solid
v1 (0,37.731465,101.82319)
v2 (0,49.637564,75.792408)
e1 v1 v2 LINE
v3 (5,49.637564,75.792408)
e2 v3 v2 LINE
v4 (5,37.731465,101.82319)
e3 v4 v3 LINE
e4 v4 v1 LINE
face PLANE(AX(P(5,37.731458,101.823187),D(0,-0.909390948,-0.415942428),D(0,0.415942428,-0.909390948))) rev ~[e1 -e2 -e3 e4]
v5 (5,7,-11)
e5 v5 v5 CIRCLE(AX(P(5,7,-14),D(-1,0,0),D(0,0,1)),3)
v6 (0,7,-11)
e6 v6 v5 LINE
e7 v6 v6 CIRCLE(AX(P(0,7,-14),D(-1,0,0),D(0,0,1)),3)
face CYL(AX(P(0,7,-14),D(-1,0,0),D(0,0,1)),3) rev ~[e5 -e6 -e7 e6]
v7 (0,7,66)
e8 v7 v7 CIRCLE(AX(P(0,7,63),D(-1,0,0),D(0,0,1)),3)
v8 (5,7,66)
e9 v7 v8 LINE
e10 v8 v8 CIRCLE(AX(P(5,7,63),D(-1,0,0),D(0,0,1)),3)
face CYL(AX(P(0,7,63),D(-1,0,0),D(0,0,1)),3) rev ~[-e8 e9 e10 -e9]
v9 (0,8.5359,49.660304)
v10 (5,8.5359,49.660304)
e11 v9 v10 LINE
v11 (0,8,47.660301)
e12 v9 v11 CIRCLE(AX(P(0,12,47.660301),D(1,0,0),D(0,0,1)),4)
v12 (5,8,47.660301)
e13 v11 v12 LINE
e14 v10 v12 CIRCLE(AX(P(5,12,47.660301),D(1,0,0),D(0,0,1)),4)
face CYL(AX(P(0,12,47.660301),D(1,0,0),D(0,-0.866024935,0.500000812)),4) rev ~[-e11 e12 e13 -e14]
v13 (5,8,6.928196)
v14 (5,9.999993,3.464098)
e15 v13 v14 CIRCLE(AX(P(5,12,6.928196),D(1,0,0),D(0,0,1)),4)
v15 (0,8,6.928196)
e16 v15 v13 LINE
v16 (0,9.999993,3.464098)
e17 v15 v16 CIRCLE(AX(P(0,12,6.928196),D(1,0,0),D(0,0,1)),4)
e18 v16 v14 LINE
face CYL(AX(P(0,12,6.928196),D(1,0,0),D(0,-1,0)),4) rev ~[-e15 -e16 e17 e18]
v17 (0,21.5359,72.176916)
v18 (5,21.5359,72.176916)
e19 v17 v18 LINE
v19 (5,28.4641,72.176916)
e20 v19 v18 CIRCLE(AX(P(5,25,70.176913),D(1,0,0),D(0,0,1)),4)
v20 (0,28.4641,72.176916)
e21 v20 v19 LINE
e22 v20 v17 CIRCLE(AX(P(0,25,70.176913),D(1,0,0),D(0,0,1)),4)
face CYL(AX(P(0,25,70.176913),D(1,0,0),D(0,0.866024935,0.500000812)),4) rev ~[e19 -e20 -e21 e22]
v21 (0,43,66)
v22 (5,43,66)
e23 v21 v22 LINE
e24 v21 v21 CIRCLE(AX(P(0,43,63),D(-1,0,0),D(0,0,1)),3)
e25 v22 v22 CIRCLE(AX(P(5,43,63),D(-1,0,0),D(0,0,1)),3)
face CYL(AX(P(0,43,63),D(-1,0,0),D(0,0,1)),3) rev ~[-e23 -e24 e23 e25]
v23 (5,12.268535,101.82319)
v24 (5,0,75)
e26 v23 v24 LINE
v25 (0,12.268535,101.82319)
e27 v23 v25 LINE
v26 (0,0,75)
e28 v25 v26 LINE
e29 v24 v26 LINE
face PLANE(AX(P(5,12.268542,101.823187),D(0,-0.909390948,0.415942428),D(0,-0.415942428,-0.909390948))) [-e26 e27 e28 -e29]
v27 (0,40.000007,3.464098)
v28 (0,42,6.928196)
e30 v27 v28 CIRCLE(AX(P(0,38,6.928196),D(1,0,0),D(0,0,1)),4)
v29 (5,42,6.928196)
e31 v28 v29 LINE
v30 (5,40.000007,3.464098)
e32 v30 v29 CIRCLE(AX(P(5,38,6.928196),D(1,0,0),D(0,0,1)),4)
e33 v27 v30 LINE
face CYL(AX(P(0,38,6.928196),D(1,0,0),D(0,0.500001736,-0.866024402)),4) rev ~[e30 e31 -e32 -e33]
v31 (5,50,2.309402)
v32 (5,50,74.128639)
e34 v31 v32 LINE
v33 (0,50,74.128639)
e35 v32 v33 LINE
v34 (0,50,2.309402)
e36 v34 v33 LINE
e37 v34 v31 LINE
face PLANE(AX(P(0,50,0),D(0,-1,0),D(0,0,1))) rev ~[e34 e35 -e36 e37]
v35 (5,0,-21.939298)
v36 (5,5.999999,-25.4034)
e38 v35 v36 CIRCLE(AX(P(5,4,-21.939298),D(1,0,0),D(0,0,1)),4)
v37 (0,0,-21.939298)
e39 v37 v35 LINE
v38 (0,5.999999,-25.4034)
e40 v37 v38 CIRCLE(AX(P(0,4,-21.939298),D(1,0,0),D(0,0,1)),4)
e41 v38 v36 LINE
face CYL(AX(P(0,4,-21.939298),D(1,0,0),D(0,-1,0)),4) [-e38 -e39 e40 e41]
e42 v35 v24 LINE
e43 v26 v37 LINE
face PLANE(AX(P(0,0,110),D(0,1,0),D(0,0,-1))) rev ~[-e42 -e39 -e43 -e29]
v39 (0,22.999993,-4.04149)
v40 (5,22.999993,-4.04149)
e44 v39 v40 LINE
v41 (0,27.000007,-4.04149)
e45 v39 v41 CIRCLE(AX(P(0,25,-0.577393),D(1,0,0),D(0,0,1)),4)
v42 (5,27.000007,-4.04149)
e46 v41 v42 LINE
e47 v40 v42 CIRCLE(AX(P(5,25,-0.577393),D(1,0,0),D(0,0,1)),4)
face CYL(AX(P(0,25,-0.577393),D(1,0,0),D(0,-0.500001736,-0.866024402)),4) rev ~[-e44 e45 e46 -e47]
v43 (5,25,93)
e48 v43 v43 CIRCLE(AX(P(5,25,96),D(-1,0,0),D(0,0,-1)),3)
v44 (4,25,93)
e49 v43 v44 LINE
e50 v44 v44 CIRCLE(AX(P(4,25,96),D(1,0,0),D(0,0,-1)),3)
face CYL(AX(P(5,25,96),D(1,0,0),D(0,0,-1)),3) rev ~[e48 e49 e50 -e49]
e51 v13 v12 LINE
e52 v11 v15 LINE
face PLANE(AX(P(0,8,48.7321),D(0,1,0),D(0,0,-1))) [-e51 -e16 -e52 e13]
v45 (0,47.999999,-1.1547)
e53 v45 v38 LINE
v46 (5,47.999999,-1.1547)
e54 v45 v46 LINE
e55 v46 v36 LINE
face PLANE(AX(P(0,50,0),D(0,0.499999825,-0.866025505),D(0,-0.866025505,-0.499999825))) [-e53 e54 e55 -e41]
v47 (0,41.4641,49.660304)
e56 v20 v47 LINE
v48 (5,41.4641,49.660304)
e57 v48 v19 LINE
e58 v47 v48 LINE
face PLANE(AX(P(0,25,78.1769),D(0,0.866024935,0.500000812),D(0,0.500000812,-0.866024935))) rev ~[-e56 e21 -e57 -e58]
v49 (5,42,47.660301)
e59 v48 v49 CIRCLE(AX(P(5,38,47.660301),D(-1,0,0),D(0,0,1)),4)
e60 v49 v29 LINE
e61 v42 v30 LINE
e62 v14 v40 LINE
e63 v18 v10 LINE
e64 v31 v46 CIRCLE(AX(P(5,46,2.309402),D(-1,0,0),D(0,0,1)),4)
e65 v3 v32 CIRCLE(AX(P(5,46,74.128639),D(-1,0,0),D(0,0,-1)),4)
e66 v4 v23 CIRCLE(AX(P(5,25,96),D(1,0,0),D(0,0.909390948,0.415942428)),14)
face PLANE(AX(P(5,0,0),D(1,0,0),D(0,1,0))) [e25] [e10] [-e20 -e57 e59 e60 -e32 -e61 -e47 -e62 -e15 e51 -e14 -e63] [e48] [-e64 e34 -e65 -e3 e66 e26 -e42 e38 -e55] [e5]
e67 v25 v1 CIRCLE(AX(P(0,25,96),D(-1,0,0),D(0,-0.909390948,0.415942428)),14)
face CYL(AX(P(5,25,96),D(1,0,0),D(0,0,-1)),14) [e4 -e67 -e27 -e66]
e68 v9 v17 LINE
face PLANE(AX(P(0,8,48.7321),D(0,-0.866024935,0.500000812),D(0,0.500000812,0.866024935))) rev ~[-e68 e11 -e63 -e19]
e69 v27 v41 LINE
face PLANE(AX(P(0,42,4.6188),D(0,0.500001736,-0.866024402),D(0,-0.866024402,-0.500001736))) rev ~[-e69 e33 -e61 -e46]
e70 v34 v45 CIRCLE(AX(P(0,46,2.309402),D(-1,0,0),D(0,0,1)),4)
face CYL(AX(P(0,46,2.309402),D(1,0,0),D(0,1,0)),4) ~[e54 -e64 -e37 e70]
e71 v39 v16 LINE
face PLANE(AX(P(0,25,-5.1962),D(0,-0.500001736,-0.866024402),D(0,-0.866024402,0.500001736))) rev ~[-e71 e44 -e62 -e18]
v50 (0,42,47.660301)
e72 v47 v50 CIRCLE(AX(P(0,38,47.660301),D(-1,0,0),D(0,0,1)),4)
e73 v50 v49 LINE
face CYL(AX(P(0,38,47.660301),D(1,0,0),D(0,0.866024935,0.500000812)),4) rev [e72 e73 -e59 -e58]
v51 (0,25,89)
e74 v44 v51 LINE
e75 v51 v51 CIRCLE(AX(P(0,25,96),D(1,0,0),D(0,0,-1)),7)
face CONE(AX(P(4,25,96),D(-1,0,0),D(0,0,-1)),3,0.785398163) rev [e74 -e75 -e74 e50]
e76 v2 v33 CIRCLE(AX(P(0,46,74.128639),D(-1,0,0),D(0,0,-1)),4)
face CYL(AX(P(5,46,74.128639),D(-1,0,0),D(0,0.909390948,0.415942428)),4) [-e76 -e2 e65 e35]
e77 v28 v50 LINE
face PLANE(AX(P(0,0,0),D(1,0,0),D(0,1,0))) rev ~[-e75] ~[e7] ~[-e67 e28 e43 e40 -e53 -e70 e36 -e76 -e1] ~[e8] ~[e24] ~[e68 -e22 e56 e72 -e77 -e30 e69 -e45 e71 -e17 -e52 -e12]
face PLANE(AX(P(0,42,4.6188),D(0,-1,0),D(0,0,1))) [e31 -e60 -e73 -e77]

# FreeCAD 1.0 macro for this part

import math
import FreeCAD as App
import Part
import Sketcher
from FreeCAD import Vector
Q = App.Units.Quantity


def edges_at(feature, points):
    """Names of the edges that pass closest to the given points."""
    edges = feature.Shape.Edges
    near = lambda p: min(range(len(edges)), key=lambda i: edges[i].distToShape(Part.Vertex(*p))[0])
    return sorted({f"Edge{near(p) + 1}" for p in points})

doc = App.newDocument("Part")
body = doc.addObject("PartDesign::Body", "Body")

sketch1 = body.newObject("Sketcher::SketchObject", "Sketch")
sketch1.AttachmentSupport = (doc.getObject("YZ_Plane"), [""])
sketch1.MapMode = "FlatFace"
sketch1.addGeometry(Part.LineSegment(Vector(0, 110, 0), Vector(0, -29, 0)), False)
sketch1.addGeometry(Part.LineSegment(Vector(0, -29, 0), Vector(50, 0, 0)), False)
sketch1.addGeometry(Part.LineSegment(Vector(50, 0, 0), Vector(50, 110, 0)), False)
sketch1.addGeometry(Part.LineSegment(Vector(50, 110, 0), Vector(0, 110, 0)), False)
sketch1.addConstraint(Sketcher.Constraint("Coincident", 0, 2, 1, 1))
sketch1.addConstraint(Sketcher.Constraint("Coincident", 1, 2, 2, 1))
sketch1.addConstraint(Sketcher.Constraint("Coincident", 2, 2, 3, 1))
sketch1.addConstraint(Sketcher.Constraint("Coincident", 3, 2, 0, 1))
sketch1.addConstraint(Sketcher.Constraint("Vertical", 0))
sketch1.addConstraint(Sketcher.Constraint("Vertical", 2))
sketch1.addConstraint(Sketcher.Constraint("Horizontal", 3))
sketch1.addConstraint(Sketcher.Constraint("PointOnObject", 0, 2, -2))
sketch1.addConstraint(Sketcher.Constraint("PointOnObject", 1, 2, -1))
sketch1.addConstraint(Sketcher.Constraint("DistanceX", 3, 2, 3, 1, 50.0))
sketch1.addConstraint(Sketcher.Constraint("DistanceY", 2, 1, 2, 2, 110.0))
sketch1.addConstraint(Sketcher.Constraint("Angle", 1, Q("30 deg")))
pad1 = body.newObject("PartDesign::Pad", "Pad")
pad1.Profile = sketch1
pad1.Length = 5
doc.recompute()

fillet = body.newObject("PartDesign::Fillet", "Fillet")
fillet.Base = (pad1, edges_at(pad1, [(2.5, 50, 0), (2.5, 0, -28.867)]))
fillet.Radius = 4

sketch2 = body.newObject("Sketcher::SketchObject", "Sketch001")
sketch2.AttachmentSupport = (doc.getObject("YZ_Plane"), [""])
sketch2.MapMode = "FlatFace"
sketch2.AttachmentOffset = App.Placement(Vector(0, 0, 5), App.Rotation())
sketch2.addGeometry(Part.LineSegment(Vector(37.7, 101.8, 0), Vector(50, 75, 0)), False)
sketch2.addGeometry(Part.LineSegment(Vector(50, 75, 0), Vector(50, 110, 0)), False)
sketch2.addGeometry(Part.LineSegment(Vector(50, 110, 0), Vector(25, 110, 0)), False)
sketch2.addGeometry(Part.ArcOfCircle(Part.Circle(Vector(25, 96, 0), Vector(0, 0, 1), 14), math.radians(25), math.radians(90)), False)
sketch2.addGeometry(Part.LineSegment(Vector(0, 110, 0), Vector(0, 75, 0)), False)
sketch2.addGeometry(Part.LineSegment(Vector(0, 75, 0), Vector(12.3, 101.8, 0)), False)
sketch2.addGeometry(Part.ArcOfCircle(Part.Circle(Vector(25, 96, 0), Vector(0, 0, 1), 14), math.radians(90), math.radians(155)), False)
sketch2.addGeometry(Part.LineSegment(Vector(25, 110, 0), Vector(0, 110, 0)), False)
sketch2.addGeometry(Part.Circle(Vector(25, 96, 0), Vector(0, 0, 1), 3), False)
sketch2.addConstraint(Sketcher.Constraint("Coincident", 0, 2, 1, 1))
sketch2.addConstraint(Sketcher.Constraint("Coincident", 1, 2, 2, 1))
sketch2.addConstraint(Sketcher.Constraint("Tangent", 2, 2, 3, 2))
sketch2.addConstraint(Sketcher.Constraint("Tangent", 3, 1, 0, 1))
sketch2.addConstraint(Sketcher.Constraint("Coincident", 4, 2, 5, 1))
sketch2.addConstraint(Sketcher.Constraint("Tangent", 5, 2, 6, 2))
sketch2.addConstraint(Sketcher.Constraint("Tangent", 6, 1, 7, 1))
sketch2.addConstraint(Sketcher.Constraint("Coincident", 7, 2, 4, 1))
sketch2.addConstraint(Sketcher.Constraint("Vertical", 1))
sketch2.addConstraint(Sketcher.Constraint("Horizontal", 2))
sketch2.addConstraint(Sketcher.Constraint("Vertical", 4))
sketch2.addConstraint(Sketcher.Constraint("Horizontal", 7))
sketch2.addConstraint(Sketcher.Constraint("Coincident", 6, 3, 3, 3))
sketch2.addConstraint(Sketcher.Constraint("Coincident", 8, 3, 3, 3))
sketch2.addConstraint(Sketcher.Constraint("Equal", 3, 6))
sketch2.addConstraint(Sketcher.Constraint("PointOnObject", 4, 2, -2))
sketch2.addConstraint(Sketcher.Constraint("Horizontal", 0, 2, 4, 2))
sketch2.addConstraint(Sketcher.Constraint("Horizontal", 3, 1, 5, 2))
sketch2.addConstraint(Sketcher.Constraint("Diameter", 8, 6.0))
sketch2.addConstraint(Sketcher.Constraint("Radius", 3, 14.0))
sketch2.addConstraint(Sketcher.Constraint("DistanceX", 2, 2, 2, 1, 25.0))
sketch2.addConstraint(Sketcher.Constraint("DistanceY", 1, 1, 1, 2, 35.0))
sketch2.addConstraint(Sketcher.Constraint("DistanceY", -1, 1, 3, 3, 96.0))
pocket1 = body.newObject("PartDesign::Pocket", "Pocket")
pocket1.Profile = sketch2
pocket1.Length = 5
doc.recompute()

fillet2 = body.newObject("PartDesign::Fillet", "Fillet001")
fillet2.Base = (pocket1, edges_at(pocket1, [(2.5, 50, 75)]))
fillet2.Radius = 4
doc.recompute()

chamfer = body.newObject("PartDesign::Chamfer", "Chamfer")
chamfer.Base = (fillet2, edges_at(fillet2, [(0, 25, 99)]))
chamfer.Size = 4

sketch3 = body.newObject("Sketcher::SketchObject", "Sketch002")
sketch3.AttachmentSupport = (doc.getObject("YZ_Plane"), [""])
sketch3.MapMode = "FlatFace"
sketch3.addGeometry(Part.Circle(Vector(43, 63, 0), Vector(0, 0, 1), 3), False)
sketch3.addGeometry(Part.Circle(Vector(7, 63, 0), Vector(0, 0, 1), 3), False)
sketch3.addGeometry(Part.Circle(Vector(7, -14, 0), Vector(0, 0, 1), 3), False)
sketch3.addConstraint(Sketcher.Constraint("Equal", 0, 1))
sketch3.addConstraint(Sketcher.Constraint("Equal", 1, 2))
sketch3.addConstraint(Sketcher.Constraint("Horizontal", 0, 3, 1, 3))
sketch3.addConstraint(Sketcher.Constraint("Vertical", 1, 3, 2, 3))
sketch3.addConstraint(Sketcher.Constraint("Diameter", 0, 6.0))
sketch3.addConstraint(Sketcher.Constraint("DistanceY", -1, 1, 0, 3, 63.0))
sketch3.addConstraint(Sketcher.Constraint("DistanceX", -1, 1, 1, 3, 7.0))
sketch3.addConstraint(Sketcher.Constraint("DistanceY", 2, 3, -1, 1, 14.0))
sketch3.addConstraint(Sketcher.Constraint("DistanceX", -1, 1, 0, 3, 43.0))
pocket2 = body.newObject("PartDesign::Pocket", "Pocket001")
pocket2.Profile = sketch3
pocket2.Length = 7
pocket2.Reversed = True

sketch4 = body.newObject("Sketcher::SketchObject", "Sketch003")
sketch4.AttachmentSupport = (doc.getObject("YZ_Plane"), [""])
sketch4.MapMode = "FlatFace"
sketch4.addGeometry(Part.LineSegment(Vector(42, 49, 0), Vector(42, 5, 0)), False)
sketch4.addGeometry(Part.LineSegment(Vector(42, 5, 0), Vector(25, -5, 0)), False)
sketch4.addGeometry(Part.LineSegment(Vector(25, -5, 0), Vector(8, 5, 0)), False)
sketch4.addGeometry(Part.LineSegment(Vector(8, 5, 0), Vector(8, 49, 0)), False)
sketch4.addGeometry(Part.LineSegment(Vector(8, 49, 0), Vector(25, 78, 0)), False)
sketch4.addGeometry(Part.LineSegment(Vector(25, 78, 0), Vector(42, 49, 0)), False)
sketch4.addConstraint(Sketcher.Constraint("Coincident", 0, 2, 1, 1))
sketch4.addConstraint(Sketcher.Constraint("Coincident", 1, 2, 2, 1))
sketch4.addConstraint(Sketcher.Constraint("Coincident", 2, 2, 3, 1))
sketch4.addConstraint(Sketcher.Constraint("Coincident", 3, 2, 4, 1))
sketch4.addConstraint(Sketcher.Constraint("Coincident", 4, 2, 5, 1))
sketch4.addConstraint(Sketcher.Constraint("Coincident", 5, 2, 0, 1))
sketch4.addConstraint(Sketcher.Constraint("Vertical", 0))
sketch4.addConstraint(Sketcher.Constraint("Vertical", 3))
sketch4.addConstraint(Sketcher.Constraint("Perpendicular", 2, 4))
sketch4.addConstraint(Sketcher.Constraint("Perpendicular", 1, 5))
sketch4.addConstraint(Sketcher.Constraint("Horizontal", 0, 2, 2, 2))
sketch4.addConstraint(Sketcher.Constraint("Horizontal", 3, 2, 5, 2))
sketch4.addConstraint(Sketcher.Constraint("Vertical", 1, 2, 4, 2))
sketch4.addConstraint(Sketcher.Constraint("DistanceX", -1, 1, 2, 2, 8.0))
sketch4.addConstraint(Sketcher.Constraint("Angle", 1, Q("-150 deg")))
sketch4.addConstraint(Sketcher.Constraint("Distance", 4, 34.0))
sketch4.addConstraint(Sketcher.Constraint("DistanceY", 0, 2, 0, 1, 44.1133))
sketch4.addConstraint(Sketcher.Constraint("DistanceY", -1, 1, 3, 2, 48.732))
pocket3 = body.newObject("PartDesign::Pocket", "Pocket002")
pocket3.Profile = sketch4
pocket3.Length = 7
pocket3.Reversed = True
doc.recompute()

fillet3 = body.newObject("PartDesign::Fillet", "Fillet002")
fillet3.Base = (pocket3, edges_at(pocket3, [
    (2.5, 42, 4.619),
    (2.5, 25, -5.196),
    (2.5, 8, 4.619),
    (2.5, 8, 48.732),
    (2.5, 25, 78.177),
    (2.5, 42, 48.732),
]))
fillet3.Radius = 4

doc.recompute()
